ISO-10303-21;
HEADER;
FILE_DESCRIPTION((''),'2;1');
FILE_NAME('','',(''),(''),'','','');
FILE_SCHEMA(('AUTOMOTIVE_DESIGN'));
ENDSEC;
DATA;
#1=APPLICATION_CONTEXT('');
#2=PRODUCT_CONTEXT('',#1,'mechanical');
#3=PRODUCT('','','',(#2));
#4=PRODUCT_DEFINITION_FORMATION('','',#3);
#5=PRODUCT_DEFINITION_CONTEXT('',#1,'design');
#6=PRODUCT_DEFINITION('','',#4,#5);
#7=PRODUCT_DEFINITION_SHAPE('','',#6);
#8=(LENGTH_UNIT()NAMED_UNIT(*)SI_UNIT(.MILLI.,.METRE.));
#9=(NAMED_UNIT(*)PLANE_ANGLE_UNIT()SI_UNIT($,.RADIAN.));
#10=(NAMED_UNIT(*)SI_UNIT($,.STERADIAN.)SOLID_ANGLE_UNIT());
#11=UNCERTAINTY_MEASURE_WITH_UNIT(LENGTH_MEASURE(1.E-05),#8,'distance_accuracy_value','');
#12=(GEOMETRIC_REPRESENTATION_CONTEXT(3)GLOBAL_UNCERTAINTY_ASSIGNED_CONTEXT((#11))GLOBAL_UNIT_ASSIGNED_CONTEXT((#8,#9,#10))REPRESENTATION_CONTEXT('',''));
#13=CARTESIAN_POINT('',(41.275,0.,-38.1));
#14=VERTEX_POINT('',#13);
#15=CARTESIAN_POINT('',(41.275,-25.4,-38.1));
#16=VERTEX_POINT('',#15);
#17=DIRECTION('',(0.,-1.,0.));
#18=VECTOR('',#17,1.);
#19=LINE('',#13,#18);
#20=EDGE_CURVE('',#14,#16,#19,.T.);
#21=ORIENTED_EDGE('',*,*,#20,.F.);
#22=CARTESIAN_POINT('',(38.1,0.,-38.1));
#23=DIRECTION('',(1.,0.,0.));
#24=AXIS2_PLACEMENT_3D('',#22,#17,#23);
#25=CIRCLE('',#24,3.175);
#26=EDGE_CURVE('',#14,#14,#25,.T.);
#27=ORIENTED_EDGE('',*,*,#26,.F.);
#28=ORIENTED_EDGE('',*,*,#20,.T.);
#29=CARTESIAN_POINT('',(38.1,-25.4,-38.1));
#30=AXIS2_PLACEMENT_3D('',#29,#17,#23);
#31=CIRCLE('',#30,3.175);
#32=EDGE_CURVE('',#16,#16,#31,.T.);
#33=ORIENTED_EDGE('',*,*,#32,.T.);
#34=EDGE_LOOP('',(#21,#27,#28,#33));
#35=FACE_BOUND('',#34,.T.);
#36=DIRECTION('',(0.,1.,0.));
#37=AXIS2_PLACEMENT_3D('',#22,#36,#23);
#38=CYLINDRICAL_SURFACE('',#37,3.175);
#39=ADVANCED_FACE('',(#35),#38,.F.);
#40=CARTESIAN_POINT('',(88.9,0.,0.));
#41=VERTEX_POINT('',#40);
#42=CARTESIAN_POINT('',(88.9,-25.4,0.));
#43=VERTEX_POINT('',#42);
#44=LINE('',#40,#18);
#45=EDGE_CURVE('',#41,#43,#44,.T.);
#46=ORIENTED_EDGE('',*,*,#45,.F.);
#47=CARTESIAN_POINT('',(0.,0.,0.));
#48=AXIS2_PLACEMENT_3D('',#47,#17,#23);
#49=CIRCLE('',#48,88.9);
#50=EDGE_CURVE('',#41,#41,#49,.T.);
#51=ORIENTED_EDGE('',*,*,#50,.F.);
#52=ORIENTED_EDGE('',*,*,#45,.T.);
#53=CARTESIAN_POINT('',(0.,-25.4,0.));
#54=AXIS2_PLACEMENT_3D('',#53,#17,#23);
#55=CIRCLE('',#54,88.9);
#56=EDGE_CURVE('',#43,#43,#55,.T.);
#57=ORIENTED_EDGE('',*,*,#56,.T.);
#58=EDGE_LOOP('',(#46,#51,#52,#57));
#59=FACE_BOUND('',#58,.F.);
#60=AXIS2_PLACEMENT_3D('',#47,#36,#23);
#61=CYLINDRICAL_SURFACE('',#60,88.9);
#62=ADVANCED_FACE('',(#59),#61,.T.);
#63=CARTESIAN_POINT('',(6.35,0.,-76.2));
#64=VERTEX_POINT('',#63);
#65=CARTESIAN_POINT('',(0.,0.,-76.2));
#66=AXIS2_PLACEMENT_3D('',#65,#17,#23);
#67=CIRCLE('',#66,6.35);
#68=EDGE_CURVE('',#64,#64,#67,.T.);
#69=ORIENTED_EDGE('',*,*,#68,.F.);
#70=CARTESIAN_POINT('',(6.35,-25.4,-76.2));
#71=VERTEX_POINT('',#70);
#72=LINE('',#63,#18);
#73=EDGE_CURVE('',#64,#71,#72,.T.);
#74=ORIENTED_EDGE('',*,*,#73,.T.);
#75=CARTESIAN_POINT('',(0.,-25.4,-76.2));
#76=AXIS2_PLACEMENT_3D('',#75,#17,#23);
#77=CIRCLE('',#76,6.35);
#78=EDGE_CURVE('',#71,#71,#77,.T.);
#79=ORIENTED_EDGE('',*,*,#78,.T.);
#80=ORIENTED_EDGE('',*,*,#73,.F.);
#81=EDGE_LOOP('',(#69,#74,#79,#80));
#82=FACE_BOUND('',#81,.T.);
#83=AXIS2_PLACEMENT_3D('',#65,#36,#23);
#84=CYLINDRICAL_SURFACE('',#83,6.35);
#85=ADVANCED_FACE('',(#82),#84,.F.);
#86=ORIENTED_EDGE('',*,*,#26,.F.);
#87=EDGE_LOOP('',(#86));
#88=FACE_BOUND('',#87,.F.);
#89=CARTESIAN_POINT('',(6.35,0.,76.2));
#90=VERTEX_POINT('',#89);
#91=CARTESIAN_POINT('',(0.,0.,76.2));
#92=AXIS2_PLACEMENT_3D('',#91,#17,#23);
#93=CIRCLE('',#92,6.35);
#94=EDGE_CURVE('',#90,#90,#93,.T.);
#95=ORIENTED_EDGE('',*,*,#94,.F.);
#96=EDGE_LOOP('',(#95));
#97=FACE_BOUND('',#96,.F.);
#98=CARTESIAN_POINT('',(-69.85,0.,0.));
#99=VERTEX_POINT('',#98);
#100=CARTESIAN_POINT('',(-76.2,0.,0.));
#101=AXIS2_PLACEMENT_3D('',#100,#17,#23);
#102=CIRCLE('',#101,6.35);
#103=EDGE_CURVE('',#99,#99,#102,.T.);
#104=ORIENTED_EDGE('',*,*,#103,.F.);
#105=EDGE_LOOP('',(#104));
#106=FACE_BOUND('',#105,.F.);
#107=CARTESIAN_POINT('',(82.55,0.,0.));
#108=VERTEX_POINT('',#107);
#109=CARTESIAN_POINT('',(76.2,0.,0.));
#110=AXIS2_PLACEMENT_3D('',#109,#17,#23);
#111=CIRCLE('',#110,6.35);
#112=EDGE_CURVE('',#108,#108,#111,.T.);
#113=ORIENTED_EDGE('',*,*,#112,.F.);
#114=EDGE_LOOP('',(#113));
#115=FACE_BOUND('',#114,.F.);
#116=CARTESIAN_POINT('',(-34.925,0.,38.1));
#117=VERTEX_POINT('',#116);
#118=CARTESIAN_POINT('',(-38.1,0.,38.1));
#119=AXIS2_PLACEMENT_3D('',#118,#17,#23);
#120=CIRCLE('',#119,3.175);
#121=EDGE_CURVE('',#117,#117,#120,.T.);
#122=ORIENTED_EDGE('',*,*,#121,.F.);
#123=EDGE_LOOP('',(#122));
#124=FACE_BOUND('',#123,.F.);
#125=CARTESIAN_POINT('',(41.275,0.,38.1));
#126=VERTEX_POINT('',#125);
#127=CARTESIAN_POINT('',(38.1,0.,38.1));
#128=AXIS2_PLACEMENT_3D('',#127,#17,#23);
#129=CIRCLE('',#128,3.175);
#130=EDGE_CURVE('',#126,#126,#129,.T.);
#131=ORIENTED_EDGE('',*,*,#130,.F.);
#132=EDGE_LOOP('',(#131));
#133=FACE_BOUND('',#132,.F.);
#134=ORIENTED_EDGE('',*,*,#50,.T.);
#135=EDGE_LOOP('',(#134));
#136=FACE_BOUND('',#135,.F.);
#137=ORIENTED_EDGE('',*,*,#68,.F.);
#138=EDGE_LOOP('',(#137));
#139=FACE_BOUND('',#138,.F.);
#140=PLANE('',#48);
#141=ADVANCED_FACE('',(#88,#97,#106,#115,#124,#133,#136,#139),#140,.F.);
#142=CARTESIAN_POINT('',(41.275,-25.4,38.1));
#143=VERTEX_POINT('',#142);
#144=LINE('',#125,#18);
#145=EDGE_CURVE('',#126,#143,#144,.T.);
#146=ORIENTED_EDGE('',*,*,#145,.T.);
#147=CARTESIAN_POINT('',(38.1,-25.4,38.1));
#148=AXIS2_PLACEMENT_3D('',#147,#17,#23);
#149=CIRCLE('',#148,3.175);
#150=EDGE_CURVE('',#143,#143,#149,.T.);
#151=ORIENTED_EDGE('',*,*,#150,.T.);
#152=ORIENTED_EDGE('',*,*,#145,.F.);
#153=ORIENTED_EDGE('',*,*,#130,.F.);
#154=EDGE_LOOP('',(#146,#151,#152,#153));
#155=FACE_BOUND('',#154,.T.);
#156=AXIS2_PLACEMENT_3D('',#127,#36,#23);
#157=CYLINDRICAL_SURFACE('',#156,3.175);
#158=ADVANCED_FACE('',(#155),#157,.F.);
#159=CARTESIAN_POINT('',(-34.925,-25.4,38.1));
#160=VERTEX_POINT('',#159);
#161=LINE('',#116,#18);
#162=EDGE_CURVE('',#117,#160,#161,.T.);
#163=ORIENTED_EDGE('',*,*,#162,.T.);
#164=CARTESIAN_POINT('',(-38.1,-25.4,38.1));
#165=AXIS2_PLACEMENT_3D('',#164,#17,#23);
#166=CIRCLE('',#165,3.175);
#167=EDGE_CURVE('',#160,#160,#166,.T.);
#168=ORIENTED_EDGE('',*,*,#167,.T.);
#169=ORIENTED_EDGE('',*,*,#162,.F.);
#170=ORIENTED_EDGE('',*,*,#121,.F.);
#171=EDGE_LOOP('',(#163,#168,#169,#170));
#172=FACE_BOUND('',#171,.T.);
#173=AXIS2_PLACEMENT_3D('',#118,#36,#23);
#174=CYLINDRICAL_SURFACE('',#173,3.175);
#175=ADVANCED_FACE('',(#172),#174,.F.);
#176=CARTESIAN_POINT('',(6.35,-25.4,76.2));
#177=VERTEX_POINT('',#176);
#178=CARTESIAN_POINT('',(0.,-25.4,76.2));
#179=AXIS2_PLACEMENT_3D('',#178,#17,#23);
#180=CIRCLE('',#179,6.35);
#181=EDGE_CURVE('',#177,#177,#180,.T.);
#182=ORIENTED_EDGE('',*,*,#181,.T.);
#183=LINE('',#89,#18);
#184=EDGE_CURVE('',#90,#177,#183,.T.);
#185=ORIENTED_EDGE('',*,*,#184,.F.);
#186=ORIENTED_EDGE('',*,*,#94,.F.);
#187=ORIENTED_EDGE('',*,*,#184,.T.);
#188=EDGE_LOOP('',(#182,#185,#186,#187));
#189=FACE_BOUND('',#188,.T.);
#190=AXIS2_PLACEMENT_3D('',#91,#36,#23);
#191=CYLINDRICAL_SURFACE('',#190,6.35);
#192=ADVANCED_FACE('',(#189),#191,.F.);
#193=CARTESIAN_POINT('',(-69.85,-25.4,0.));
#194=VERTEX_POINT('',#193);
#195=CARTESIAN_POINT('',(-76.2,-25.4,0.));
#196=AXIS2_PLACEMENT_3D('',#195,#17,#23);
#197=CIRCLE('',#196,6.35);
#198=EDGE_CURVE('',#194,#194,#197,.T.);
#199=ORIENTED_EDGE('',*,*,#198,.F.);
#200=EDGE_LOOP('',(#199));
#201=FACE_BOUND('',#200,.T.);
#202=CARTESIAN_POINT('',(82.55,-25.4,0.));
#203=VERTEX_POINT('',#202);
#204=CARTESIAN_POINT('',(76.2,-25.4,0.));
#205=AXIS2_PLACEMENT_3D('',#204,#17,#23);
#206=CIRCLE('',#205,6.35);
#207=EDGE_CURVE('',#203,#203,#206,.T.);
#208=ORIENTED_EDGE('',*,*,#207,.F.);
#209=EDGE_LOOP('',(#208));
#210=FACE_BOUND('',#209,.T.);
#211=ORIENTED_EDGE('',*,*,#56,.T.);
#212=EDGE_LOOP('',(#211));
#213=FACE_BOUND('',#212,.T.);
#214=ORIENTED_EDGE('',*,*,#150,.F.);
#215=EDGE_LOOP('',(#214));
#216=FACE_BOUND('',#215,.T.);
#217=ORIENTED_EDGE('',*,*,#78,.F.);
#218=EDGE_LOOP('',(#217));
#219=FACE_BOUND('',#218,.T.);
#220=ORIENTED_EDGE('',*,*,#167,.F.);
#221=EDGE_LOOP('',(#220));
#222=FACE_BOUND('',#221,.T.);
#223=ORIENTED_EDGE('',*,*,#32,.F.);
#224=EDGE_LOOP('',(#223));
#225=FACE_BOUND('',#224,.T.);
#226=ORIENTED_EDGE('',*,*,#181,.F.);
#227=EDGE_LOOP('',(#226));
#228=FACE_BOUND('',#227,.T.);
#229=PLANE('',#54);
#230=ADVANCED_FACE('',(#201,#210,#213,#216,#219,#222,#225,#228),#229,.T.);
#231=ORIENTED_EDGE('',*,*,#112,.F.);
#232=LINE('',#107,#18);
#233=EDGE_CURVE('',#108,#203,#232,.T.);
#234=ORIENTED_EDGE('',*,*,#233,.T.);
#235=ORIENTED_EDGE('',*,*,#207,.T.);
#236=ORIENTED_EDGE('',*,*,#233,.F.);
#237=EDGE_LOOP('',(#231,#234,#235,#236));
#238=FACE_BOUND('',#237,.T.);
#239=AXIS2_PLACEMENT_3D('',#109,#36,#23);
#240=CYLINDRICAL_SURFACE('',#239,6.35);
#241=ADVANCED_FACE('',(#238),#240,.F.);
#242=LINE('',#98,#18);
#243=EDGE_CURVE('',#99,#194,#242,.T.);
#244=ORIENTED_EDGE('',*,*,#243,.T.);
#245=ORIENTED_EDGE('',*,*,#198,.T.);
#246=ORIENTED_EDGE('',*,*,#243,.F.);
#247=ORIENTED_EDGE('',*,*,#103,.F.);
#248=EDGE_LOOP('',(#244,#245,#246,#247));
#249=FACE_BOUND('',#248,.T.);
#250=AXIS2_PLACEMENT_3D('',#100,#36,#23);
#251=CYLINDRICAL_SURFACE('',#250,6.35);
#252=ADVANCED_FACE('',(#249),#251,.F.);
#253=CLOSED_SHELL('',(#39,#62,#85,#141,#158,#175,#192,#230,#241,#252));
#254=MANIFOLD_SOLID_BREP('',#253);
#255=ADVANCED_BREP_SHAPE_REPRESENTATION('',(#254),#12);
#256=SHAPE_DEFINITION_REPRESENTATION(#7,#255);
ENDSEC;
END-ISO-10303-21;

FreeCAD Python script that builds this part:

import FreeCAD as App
import Part
import Sketcher
Q = App.Units.Quantity

doc = App.newDocument("Part")
body = doc.addObject("PartDesign::Body", "Body")

# Sketch on XZ plane
sketch1 = body.newObject("Sketcher::SketchObject", "Sketch")
sketch1.AttachmentSupport = (doc.getObject("XZ_Plane"), [""])
sketch1.MapMode = "FlatFace"
sketch1.addGeometry(Part.Circle(App.Vector(0, 0, 0), App.Vector(0, 0, 1), 88.9), False)
sketch1.addGeometry(Part.Circle(App.Vector(0, -76.2, 0), App.Vector(0, 0, 1), 6.3), False)
sketch1.addGeometry(Part.Circle(App.Vector(38.1, -38.1, 0), App.Vector(0, 0, 1), 3.2), False)
sketch1.addGeometry(Part.Circle(App.Vector(-76.2, 0, 0), App.Vector(0, 0, 1), 6.3), False)
sketch1.addGeometry(Part.Circle(App.Vector(-38.1, 38.1, 0), App.Vector(0, 0, 1), 3.2), False)
sketch1.addGeometry(Part.Circle(App.Vector(38.1, 38.1, 0), App.Vector(0, 0, 1), 3.2), False)
sketch1.addGeometry(Part.Circle(App.Vector(76.2, 0, 0), App.Vector(0, 0, 1), 6.3), False)
sketch1.addGeometry(Part.Circle(App.Vector(0, 76.2, 0), App.Vector(0, 0, 1), 6.3), False)
sketch1.addConstraint(Sketcher.Constraint("Coincident", 0, 3, -1, 1))
sketch1.addConstraint(Sketcher.Constraint("Equal", 1, 3))
sketch1.addConstraint(Sketcher.Constraint("Equal", 2, 4))
sketch1.addConstraint(Sketcher.Constraint("Equal", 4, 5))
sketch1.addConstraint(Sketcher.Constraint("Equal", 3, 6))
sketch1.addConstraint(Sketcher.Constraint("Equal", 6, 7))
sketch1.addConstraint(Sketcher.Constraint("Symmetric", 2, 3, 4, 3, -1, 1))
sketch1.addConstraint(Sketcher.Constraint("Symmetric", 3, 3, 6, 3, -1, 1))
sketch1.addConstraint(Sketcher.Constraint("Symmetric", 1, 3, 7, 3, -1, 1))
sketch1.addConstraint(Sketcher.Constraint("Symmetric", 4, 3, 5, 3, -2))
sketch1.addConstraint(Sketcher.Constraint("PointOnObject", 1, 3, -2))
sketch1.addConstraint(Sketcher.Constraint("PointOnObject", 3, 3, -1))
sketch1.addConstraint(Sketcher.Constraint("Diameter", 0, Q("7 in")))
sketch1.addConstraint(Sketcher.Constraint("Diameter", 1, Q("0.5 in")))
sketch1.addConstraint(Sketcher.Constraint("Diameter", 2, Q("0.25 in")))
sketch1.addConstraint(Sketcher.Constraint("DistanceY", 1, 3, -1, 1, Q("3 in")))
sketch1.addConstraint(Sketcher.Constraint("DistanceX", 3, 3, -1, 1, Q("3 in")))
sketch1.addConstraint(Sketcher.Constraint("DistanceX", 4, 3, 2, 3, Q("3 in")))
sketch1.addConstraint(Sketcher.Constraint("DistanceY", 2, 3, 4, 3, Q("3 in")))
pad1 = body.newObject("PartDesign::Pad", "Pad")
pad1.Profile = sketch1
pad1.Length = Q("1 in")

doc.recompute()
